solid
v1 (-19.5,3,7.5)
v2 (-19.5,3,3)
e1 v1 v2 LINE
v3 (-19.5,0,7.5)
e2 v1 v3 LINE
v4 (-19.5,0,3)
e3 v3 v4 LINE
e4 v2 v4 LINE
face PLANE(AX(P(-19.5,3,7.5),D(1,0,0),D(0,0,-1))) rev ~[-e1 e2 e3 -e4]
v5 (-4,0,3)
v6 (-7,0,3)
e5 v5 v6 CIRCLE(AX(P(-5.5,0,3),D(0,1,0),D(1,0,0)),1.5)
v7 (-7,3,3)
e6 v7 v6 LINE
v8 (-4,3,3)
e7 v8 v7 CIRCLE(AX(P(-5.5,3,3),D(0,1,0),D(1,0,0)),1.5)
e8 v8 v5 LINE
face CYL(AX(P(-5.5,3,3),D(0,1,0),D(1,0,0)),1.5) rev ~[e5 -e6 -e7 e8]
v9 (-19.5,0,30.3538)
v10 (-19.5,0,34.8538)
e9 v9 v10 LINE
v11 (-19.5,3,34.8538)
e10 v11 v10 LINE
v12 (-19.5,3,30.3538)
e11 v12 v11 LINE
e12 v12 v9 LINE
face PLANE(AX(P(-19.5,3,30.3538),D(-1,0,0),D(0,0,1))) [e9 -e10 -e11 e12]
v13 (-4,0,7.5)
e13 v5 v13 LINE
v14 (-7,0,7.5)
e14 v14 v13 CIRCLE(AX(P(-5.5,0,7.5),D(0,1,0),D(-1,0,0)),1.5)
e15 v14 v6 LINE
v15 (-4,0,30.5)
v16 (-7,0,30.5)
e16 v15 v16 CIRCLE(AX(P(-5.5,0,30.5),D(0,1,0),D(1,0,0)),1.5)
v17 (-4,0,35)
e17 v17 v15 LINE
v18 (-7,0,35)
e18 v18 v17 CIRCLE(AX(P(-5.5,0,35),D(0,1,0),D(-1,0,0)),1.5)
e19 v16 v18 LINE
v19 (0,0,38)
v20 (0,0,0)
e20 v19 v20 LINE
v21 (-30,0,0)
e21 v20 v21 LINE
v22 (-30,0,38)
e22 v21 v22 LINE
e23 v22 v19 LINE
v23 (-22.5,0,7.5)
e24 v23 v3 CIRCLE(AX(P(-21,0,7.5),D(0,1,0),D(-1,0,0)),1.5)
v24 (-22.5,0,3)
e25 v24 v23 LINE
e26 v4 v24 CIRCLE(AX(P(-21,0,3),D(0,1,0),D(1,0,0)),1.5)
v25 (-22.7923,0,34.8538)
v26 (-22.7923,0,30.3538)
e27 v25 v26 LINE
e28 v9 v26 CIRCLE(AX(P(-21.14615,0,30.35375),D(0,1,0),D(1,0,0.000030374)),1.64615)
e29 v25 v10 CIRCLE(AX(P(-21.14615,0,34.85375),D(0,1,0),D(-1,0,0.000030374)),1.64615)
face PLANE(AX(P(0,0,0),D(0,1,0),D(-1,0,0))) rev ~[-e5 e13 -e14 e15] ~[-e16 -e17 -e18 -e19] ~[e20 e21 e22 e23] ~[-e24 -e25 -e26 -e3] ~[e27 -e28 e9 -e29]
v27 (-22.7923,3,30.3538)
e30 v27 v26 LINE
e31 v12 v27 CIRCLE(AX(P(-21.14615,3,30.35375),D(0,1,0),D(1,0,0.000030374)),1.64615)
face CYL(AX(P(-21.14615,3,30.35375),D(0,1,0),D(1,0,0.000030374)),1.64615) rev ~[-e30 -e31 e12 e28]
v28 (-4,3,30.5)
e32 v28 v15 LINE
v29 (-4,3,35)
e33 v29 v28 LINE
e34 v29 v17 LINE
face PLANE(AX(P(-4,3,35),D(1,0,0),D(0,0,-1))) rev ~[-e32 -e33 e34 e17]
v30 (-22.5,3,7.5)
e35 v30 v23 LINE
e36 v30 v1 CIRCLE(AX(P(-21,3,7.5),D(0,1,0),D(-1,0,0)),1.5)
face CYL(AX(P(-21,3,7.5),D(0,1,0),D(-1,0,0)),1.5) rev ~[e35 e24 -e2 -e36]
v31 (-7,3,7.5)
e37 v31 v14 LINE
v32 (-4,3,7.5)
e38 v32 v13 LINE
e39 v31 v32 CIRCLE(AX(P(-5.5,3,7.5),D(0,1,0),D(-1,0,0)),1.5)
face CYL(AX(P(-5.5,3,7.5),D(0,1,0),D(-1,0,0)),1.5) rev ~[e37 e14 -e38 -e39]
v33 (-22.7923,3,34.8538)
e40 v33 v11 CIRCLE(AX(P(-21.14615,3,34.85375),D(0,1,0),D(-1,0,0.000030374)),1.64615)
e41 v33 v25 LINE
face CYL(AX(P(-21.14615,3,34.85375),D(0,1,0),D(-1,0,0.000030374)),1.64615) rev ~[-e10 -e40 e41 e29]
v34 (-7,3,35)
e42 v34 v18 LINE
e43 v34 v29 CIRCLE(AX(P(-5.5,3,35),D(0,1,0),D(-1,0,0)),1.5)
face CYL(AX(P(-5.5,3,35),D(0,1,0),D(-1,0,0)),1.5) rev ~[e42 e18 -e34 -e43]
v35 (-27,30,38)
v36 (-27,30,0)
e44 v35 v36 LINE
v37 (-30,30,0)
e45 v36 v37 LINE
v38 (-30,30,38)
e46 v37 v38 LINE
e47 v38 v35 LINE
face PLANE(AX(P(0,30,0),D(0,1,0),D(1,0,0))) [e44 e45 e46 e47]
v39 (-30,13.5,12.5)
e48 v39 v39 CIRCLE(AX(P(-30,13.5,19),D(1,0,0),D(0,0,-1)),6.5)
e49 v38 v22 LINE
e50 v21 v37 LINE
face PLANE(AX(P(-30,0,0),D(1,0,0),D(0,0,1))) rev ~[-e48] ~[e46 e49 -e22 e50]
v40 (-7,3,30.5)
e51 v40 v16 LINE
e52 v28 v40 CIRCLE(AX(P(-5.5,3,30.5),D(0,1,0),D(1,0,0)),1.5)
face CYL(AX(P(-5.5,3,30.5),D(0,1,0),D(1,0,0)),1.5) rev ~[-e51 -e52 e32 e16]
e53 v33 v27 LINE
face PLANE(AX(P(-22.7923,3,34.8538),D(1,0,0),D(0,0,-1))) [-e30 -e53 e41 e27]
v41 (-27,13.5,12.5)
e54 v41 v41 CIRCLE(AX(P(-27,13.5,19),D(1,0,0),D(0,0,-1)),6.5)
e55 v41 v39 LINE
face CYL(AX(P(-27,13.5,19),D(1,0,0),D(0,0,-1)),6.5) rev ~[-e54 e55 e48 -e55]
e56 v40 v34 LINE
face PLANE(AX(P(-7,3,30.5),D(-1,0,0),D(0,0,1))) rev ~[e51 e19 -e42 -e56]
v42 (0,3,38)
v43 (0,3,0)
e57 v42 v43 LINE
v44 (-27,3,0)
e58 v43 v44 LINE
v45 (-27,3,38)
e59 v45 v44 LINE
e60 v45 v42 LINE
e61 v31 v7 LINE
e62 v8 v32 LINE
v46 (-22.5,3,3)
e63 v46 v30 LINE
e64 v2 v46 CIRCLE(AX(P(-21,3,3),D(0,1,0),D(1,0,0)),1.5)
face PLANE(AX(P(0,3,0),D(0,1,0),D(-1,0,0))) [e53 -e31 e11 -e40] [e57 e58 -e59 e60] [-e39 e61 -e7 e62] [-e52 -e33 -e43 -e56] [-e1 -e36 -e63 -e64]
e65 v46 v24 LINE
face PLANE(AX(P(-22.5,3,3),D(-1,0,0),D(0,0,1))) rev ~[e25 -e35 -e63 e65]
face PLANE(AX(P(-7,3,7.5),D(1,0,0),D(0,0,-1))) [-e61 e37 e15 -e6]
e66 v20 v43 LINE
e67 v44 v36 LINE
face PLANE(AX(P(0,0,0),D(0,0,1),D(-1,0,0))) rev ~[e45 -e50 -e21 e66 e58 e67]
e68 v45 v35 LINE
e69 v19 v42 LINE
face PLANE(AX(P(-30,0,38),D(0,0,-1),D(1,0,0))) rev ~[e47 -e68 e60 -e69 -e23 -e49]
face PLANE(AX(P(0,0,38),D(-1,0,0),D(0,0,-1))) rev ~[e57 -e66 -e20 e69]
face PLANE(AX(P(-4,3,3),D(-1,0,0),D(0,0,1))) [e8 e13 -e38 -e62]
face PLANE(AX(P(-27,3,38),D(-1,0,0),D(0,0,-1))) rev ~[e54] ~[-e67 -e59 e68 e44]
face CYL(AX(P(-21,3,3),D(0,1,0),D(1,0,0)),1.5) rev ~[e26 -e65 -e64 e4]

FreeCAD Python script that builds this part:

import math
import FreeCAD as App
import Part
import Sketcher
from FreeCAD import Vector


def add_polygon(sketch, points):
    """Adds a closed chain of lines whose ends are joined by coincident constraints."""
    first, n = sketch.GeometryCount, len(points)
    for a, b in zip(points, points[1:] + points[:1]):
        sketch.addGeometry(Part.LineSegment(App.Vector(*a, 0), App.Vector(*b, 0)), False)
    for i in range(n):
        sketch.addConstraint(Sketcher.Constraint("Coincident", first + i, 2, first + (i + 1) % n, 1))

doc = App.newDocument("Part")
body = doc.addObject("PartDesign::Body", "Body")

sketch1 = body.newObject("Sketcher::SketchObject", "Sketch")
sketch1.AttachmentSupport = (doc.getObject("XZ_Plane"), [""])
sketch1.MapMode = "FlatFace"
add_polygon(sketch1, [(0, 38), (0, 0), (-30, 0), (-30, 38)])
sketch1.addConstraint([
    Sketcher.Constraint("Vertical", 0),
    Sketcher.Constraint("Horizontal", 1),
    Sketcher.Constraint("Vertical", 2),
    Sketcher.Constraint("Horizontal", 3),
    Sketcher.Constraint("Coincident", 0, 2, -1, 1),
    Sketcher.Constraint("DistanceX", 1, 2, 1, 1, 30.0),
    Sketcher.Constraint("DistanceY", 0, 2, 0, 1, 38.0),
])
pad1 = body.newObject("PartDesign::Pad", "Pad")
pad1.Profile = sketch1
pad1.Length = 3
pad1.Reversed = True

sketch2 = body.newObject("Sketcher::SketchObject", "Sketch001")
sketch2.AttachmentSupport = (doc.getObject("XZ_Plane"), [""])
sketch2.MapMode = "FlatFace"
sketch2.AttachmentOffset = App.Placement(Vector(0, 0, -3), App.Rotation())
add_polygon(sketch2, [(-27, 0), (-30, 0), (-30, 38), (-27, 38)])
sketch2.addConstraint([
    Sketcher.Constraint("Horizontal", 0),
    Sketcher.Constraint("Vertical", 1),
    Sketcher.Constraint("Horizontal", 2),
    Sketcher.Constraint("Vertical", 3),
    Sketcher.Constraint("PointOnObject", 0, 2, -1),
    Sketcher.Constraint("DistanceX", 0, 2, 0, 1, 3.0),
    Sketcher.Constraint("DistanceY", 1, 1, 1, 2, 38.0),
    Sketcher.Constraint("DistanceX", 0, 2, -1, 1, 30.0),
])
pad2 = body.newObject("PartDesign::Pad", "Pad001")
pad2.Profile = sketch2
pad2.Length = 27
pad2.Reversed = True

sketch3 = body.newObject("Sketcher::SketchObject", "Sketch002")
sketch3.AttachmentSupport = (doc.getObject("YZ_Plane"), [""])
sketch3.MapMode = "FlatFace"
sketch3.AttachmentOffset = App.Placement(Vector(0, 0, -27), App.Rotation())
sketch3.addGeometry(Part.Circle(Vector(14, 19, 0), Vector(0, 0, 1), 6), False)
sketch3.addConstraint([
    Sketcher.Constraint("Diameter", 0, 13.0),
    Sketcher.Constraint("DistanceY", -1, 1, 0, 3, 19.0),
    Sketcher.Constraint("DistanceX", -1, 1, 0, 3, 13.5),
])
pocket1 = body.newObject("PartDesign::Pocket", "Pocket")
pocket1.Profile = sketch3
pocket1.Length = 3

sketch4 = body.newObject("Sketcher::SketchObject", "Sketch003")
sketch4.AttachmentSupport = (doc.getObject("XZ_Plane"), [""])
sketch4.MapMode = "FlatFace"
sketch4.AttachmentOffset = App.Placement(Vector(0, 0, -3), App.Rotation())
sketch4.addGeometry([
    Part.ArcOfCircle(Part.Circle(Vector(-5.5, 35, 0), Vector(0, 0, 1), 1.5), math.radians(0), math.radians(180)),
    Part.LineSegment(Vector(-4, 35, 0), Vector(-4, 30.5, 0)),
    Part.ArcOfCircle(Part.Circle(Vector(-5.5, 30.5, 0), Vector(0, 0, 1), 1.5), math.radians(180), math.radians(360)),
    Part.LineSegment(Vector(-7, 30.5, 0), Vector(-7, 35, 0)),
    Part.LineSegment(Vector(-7, 3, 0), Vector(-7, 7.5, 0)),
    Part.ArcOfCircle(Part.Circle(Vector(-5.5, 7.5, 0), Vector(0, 0, 1), 1.5), math.radians(0), math.radians(180)),
    Part.LineSegment(Vector(-4, 7.5, 0), Vector(-4, 3, 0)),
    Part.ArcOfCircle(Part.Circle(Vector(-5.5, 3, 0), Vector(0, 0, 1), 1.5), math.radians(180), math.radians(360)),
    Part.ArcOfCircle(Part.Circle(Vector(-21, 3, 0), Vector(0, 0, 1), 1.5), math.radians(180), math.radians(360)),
    Part.LineSegment(Vector(-22.5, 3, 0), Vector(-22.5, 7.5, 0)),
    Part.ArcOfCircle(Part.Circle(Vector(-21, 7.5, 0), Vector(0, 0, 1), 1.5), math.radians(0), math.radians(180)),
    Part.LineSegment(Vector(-19.5, 7.5, 0), Vector(-19.5, 3, 0)),
    Part.LineSegment(Vector(-22.8, 30.4, 0), Vector(-22.8, 34.9, 0)),
    Part.ArcOfCircle(Part.Circle(Vector(-21.1, 34.9, 0), Vector(0, 0, 1), 1.6), math.radians(0), math.radians(180)),
    Part.LineSegment(Vector(-19.5, 34.9, 0), Vector(-19.5, 30.4, 0)),
    Part.ArcOfCircle(Part.Circle(Vector(-21.1, 30.4, 0), Vector(0, 0, 1), 1.6), math.radians(180), math.radians(360)),
], False)
sketch4.addConstraint([
    Sketcher.Constraint("Tangent", 0, 1, 1, 1),
    Sketcher.Constraint("Tangent", 1, 2, 2, 2),
    Sketcher.Constraint("Tangent", 2, 1, 3, 1),
    Sketcher.Constraint("Tangent", 3, 2, 0, 2),
    Sketcher.Constraint("Tangent", 4, 2, 5, 2),
    Sketcher.Constraint("Tangent", 5, 1, 6, 1),
    Sketcher.Constraint("Tangent", 6, 2, 7, 2),
    Sketcher.Constraint("Tangent", 7, 1, 4, 1),
    Sketcher.Constraint("Tangent", 8, 1, 9, 1),
    Sketcher.Constraint("Tangent", 9, 2, 10, 2),
    Sketcher.Constraint("Tangent", 10, 1, 11, 1),
    Sketcher.Constraint("Tangent", 11, 2, 8, 2),
    Sketcher.Constraint("Tangent", 12, 2, 13, 2),
    Sketcher.Constraint("Tangent", 13, 1, 14, 1),
    Sketcher.Constraint("Tangent", 14, 2, 15, 2),
    Sketcher.Constraint("Tangent", 15, 1, 12, 1),
    Sketcher.Constraint("Vertical", 1),
    Sketcher.Constraint("Vertical", 3),
    Sketcher.Constraint("Vertical", 4),
    Sketcher.Constraint("Vertical", 6),
    Sketcher.Constraint("Vertical", 9),
    Sketcher.Constraint("Vertical", 11),
    Sketcher.Constraint("Vertical", 12),
    Sketcher.Constraint("Vertical", 14),
    Sketcher.Constraint("Equal", 2, 5),
    Sketcher.Constraint("Equal", 7, 8),
    Sketcher.Constraint("Horizontal", 7, 3, 8, 3),
    Sketcher.Constraint("Horizontal", 5, 3, 10, 3),
    Sketcher.Constraint("Vertical", 2, 3, 5, 3),
    Sketcher.Constraint("Vertical", 11, 2, 13, 1),
    Sketcher.Constraint("Equal", 3, 4),
    Sketcher.Constraint("Equal", 11, 12),
    Sketcher.Constraint("Radius", 0, 1.5),
    Sketcher.Constraint("DistanceY", -1, 1, 7, 3, 3.0),
    Sketcher.Constraint("DistanceX", 0, 1, -1, 1, 4.0),
    Sketcher.Constraint("DistanceX", 10, 3, 5, 1, 17.0),
    Sketcher.Constraint("DistanceY", -1, 1, 5, 3, 7.5),
    Sketcher.Constraint("DistanceY", -1, 1, 0, 3, 35.0),
    Sketcher.Constraint("Radius", 13, 1.646),
    Sketcher.Constraint("DistanceY", -1, 1, 13, 3, 34.8538),
])
pocket2 = body.newObject("PartDesign::Pocket", "Pocket001")
pocket2.Profile = sketch4
pocket2.Type = "ThroughAll"
pocket2.Reversed = True

doc.recompute()
